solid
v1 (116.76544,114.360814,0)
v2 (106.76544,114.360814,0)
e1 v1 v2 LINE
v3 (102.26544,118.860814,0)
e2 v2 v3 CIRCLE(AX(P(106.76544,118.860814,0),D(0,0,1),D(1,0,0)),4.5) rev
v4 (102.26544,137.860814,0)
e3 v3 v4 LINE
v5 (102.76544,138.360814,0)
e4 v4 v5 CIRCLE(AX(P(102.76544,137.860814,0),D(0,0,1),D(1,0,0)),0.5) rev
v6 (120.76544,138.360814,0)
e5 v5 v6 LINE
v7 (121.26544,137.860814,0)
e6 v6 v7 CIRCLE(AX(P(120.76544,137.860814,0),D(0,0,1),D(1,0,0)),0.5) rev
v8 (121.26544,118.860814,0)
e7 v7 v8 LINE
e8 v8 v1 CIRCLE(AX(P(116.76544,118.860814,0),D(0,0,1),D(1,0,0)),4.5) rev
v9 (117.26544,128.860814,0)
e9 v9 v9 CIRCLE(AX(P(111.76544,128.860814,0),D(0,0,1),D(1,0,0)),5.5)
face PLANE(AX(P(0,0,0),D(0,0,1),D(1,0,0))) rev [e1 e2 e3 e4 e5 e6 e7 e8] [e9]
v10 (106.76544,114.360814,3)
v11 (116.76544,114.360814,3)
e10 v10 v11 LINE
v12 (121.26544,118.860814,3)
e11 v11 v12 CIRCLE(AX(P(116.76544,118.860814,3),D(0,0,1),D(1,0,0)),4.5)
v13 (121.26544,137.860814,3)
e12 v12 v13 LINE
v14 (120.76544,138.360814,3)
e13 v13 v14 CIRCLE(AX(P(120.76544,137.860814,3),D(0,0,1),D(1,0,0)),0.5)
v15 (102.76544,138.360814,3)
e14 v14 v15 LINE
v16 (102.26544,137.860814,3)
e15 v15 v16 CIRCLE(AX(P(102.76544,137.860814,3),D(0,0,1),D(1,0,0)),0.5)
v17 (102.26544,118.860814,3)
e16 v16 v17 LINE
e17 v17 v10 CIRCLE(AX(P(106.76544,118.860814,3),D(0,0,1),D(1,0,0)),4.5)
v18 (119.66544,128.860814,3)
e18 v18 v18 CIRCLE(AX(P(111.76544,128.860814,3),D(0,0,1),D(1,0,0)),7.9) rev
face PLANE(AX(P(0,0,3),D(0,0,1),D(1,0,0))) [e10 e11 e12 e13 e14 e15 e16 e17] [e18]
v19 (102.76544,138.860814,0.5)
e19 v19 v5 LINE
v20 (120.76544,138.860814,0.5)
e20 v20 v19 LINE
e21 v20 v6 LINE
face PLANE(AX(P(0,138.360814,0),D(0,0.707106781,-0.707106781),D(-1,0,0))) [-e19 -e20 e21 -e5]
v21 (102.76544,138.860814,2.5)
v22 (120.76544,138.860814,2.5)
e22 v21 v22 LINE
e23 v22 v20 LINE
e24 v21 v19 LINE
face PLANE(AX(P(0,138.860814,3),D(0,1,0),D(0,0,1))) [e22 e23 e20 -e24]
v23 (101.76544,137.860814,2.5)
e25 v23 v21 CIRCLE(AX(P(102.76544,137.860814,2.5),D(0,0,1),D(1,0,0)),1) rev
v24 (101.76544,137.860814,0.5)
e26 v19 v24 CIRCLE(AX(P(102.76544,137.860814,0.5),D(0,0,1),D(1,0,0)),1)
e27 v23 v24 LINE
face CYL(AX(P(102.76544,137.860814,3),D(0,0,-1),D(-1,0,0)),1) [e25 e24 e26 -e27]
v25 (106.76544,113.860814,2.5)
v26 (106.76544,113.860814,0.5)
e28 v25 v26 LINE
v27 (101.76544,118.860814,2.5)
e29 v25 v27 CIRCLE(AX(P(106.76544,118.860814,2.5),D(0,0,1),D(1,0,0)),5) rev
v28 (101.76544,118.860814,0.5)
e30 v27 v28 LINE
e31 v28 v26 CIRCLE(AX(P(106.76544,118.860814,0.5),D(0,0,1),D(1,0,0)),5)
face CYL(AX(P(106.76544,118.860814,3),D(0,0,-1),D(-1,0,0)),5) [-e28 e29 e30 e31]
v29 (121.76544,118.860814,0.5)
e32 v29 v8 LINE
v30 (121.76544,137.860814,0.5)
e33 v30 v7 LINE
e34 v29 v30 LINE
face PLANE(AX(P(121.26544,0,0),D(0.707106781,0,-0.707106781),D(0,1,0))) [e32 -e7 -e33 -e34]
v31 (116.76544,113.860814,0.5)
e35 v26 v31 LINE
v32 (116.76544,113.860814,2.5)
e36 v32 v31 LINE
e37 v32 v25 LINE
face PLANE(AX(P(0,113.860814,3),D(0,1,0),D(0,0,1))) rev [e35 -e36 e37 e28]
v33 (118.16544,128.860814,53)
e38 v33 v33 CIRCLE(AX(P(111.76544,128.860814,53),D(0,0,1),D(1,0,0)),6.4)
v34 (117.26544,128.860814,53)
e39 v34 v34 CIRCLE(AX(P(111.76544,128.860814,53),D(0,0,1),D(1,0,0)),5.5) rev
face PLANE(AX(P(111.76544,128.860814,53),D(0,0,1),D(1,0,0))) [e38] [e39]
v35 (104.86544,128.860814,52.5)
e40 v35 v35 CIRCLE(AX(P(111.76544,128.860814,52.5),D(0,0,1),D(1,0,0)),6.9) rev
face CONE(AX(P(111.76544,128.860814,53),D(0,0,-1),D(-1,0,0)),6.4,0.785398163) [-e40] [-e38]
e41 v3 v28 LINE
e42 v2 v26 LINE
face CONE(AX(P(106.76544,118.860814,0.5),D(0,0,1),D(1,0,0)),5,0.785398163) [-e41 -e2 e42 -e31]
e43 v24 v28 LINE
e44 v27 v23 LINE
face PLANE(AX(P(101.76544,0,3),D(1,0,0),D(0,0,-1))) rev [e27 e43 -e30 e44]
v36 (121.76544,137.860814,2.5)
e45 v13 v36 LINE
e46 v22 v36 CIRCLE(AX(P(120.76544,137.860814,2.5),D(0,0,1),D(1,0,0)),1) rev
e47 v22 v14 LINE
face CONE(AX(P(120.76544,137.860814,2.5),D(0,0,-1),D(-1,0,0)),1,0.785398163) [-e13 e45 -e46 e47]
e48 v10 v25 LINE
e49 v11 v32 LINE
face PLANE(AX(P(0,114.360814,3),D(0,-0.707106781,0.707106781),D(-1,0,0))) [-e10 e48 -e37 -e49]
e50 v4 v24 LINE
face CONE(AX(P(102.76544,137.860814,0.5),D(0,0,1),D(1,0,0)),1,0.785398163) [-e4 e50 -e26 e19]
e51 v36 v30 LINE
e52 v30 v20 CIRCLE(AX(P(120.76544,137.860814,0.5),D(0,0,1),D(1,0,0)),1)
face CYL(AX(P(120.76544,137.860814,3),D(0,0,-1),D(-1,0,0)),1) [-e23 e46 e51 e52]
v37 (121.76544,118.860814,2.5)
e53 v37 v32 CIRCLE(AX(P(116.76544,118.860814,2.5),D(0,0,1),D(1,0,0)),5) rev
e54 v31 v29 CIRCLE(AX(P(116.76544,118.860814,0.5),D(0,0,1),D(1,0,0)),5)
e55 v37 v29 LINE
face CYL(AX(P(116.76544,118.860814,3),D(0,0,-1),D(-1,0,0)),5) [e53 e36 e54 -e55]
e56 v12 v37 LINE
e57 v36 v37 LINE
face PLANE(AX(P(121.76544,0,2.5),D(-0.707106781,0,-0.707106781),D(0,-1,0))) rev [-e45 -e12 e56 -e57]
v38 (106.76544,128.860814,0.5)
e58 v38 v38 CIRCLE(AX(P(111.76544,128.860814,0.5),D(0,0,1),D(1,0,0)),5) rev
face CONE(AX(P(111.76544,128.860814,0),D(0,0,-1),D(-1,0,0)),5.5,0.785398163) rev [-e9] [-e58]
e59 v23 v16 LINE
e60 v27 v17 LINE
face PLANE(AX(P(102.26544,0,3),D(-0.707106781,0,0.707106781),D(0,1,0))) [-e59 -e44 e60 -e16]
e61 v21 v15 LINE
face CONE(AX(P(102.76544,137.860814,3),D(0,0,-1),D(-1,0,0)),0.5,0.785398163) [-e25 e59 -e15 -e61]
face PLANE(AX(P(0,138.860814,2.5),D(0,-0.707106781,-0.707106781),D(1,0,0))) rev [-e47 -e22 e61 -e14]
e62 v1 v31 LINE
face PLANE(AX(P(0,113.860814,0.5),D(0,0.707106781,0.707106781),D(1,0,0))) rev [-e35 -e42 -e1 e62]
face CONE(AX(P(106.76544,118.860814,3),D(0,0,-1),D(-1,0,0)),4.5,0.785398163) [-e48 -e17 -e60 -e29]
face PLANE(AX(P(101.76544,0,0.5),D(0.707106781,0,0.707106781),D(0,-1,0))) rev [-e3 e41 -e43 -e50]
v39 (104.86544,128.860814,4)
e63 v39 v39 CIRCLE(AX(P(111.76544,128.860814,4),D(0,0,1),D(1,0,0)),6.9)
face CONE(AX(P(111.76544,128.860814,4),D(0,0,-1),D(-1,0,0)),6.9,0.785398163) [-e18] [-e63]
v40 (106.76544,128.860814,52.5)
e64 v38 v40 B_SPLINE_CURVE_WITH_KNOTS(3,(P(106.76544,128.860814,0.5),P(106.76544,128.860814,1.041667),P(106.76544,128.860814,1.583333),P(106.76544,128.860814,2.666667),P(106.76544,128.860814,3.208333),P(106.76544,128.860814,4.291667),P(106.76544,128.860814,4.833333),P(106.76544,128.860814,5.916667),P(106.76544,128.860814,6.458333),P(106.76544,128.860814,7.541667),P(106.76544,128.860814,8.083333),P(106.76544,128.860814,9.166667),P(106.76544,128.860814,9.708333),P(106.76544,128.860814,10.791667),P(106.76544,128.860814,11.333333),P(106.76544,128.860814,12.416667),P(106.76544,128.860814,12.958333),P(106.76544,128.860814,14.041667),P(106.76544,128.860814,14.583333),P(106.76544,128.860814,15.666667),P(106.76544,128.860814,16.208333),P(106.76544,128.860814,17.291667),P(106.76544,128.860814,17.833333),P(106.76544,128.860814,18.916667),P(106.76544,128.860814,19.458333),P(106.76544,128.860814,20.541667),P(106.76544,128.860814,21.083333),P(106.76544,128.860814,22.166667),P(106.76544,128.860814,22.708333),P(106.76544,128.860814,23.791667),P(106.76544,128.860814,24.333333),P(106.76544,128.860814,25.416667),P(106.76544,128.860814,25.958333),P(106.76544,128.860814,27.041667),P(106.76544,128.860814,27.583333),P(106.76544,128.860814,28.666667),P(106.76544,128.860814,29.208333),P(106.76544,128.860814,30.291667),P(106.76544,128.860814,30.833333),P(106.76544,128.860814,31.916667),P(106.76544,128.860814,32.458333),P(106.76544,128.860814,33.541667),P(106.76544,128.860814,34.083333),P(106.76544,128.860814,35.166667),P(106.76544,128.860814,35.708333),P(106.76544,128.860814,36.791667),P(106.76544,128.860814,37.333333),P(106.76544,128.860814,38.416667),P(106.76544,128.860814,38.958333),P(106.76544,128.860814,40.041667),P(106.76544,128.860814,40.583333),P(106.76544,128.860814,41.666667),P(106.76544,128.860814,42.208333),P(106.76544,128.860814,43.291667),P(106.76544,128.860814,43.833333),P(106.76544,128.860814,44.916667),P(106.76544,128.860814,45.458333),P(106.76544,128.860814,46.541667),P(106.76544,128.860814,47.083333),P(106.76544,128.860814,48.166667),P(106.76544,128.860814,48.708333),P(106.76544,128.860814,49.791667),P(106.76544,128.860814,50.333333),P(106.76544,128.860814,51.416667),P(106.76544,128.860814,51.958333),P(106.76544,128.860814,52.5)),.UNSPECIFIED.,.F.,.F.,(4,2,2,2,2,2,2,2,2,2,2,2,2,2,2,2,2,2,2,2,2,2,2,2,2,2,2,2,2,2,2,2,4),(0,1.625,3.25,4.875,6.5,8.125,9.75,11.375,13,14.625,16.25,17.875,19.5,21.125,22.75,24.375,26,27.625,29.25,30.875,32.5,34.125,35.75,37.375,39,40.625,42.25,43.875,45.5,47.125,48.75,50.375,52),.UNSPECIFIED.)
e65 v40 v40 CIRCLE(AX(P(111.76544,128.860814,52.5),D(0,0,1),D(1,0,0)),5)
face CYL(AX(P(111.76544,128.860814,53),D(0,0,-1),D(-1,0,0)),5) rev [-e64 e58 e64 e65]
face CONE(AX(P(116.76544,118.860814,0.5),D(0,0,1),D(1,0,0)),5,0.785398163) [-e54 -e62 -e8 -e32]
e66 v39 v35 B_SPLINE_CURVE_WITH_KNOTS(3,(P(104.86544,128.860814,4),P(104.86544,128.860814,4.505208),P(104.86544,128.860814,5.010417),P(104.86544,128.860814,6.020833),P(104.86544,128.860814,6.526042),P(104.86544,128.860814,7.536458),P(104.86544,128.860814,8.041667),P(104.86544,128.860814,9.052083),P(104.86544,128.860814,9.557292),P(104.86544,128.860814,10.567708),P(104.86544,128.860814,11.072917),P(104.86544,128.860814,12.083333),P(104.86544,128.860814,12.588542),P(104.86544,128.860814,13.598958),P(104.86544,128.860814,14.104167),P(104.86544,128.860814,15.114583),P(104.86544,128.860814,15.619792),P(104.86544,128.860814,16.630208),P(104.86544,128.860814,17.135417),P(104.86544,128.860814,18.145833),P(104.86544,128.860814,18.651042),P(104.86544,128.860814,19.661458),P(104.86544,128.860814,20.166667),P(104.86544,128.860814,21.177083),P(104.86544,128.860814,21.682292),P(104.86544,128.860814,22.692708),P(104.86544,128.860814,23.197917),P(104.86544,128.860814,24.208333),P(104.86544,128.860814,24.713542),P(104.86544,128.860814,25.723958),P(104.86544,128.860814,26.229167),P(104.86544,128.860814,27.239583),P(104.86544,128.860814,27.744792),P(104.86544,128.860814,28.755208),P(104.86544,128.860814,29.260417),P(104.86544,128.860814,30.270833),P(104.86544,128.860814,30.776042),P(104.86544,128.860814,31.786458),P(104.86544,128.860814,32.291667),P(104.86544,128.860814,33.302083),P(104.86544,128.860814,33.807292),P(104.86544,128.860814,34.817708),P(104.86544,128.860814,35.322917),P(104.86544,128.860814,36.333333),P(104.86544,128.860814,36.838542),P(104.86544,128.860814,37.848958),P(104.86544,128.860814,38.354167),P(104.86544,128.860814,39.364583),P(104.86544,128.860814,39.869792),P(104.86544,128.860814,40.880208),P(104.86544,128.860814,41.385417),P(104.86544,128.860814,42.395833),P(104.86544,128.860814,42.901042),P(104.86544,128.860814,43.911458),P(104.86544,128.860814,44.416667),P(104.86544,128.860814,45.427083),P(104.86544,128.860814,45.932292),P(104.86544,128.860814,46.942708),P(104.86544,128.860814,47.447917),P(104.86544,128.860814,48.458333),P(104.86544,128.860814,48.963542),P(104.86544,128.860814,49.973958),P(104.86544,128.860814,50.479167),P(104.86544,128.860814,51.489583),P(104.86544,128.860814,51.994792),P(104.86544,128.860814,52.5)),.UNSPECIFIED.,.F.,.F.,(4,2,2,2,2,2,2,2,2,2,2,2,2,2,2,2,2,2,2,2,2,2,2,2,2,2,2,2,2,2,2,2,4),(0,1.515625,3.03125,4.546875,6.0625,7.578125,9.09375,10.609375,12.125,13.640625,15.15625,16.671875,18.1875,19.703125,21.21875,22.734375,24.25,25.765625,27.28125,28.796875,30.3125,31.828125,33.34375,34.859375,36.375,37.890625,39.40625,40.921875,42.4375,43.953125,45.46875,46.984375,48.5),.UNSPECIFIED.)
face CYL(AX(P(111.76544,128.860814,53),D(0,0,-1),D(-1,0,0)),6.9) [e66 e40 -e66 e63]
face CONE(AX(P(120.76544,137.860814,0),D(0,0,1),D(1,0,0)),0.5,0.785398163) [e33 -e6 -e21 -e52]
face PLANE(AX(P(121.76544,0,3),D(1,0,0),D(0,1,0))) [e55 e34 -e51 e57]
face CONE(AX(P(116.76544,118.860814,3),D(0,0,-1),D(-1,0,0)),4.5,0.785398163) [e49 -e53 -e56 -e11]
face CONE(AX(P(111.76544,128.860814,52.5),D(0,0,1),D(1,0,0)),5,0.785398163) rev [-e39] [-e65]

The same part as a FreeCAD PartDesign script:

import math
import FreeCAD as App
import Part
import Sketcher
from FreeCAD import Vector
Q = App.Units.Quantity


def edges_at(feature, points):
    """Names of the edges that pass closest to the given points."""
    edges = feature.Shape.Edges
    near = lambda p: min(range(len(edges)), key=lambda i: edges[i].distToShape(Part.Vertex(*p))[0])
    return sorted({f"Edge{near(p) + 1}" for p in points})

doc = App.newDocument("Part")
body = doc.addObject("PartDesign::Body", "Body")

sketch1 = body.newObject("Sketcher::SketchObject", "Sketch")
sketch1.AttachmentSupport = (doc.getObject("XY_Plane"), [""])
sketch1.MapMode = "FlatFace"
sketch1.addGeometry(Part.LineSegment(Vector(120.76544, 138.860814, 0), Vector(102.76544, 138.860814, 0)), False)
sketch1.addGeometry(Part.ArcOfCircle(Part.Circle(Vector(102.76544, 137.860814, 0), Vector(0, 0, 1), 1), math.radians(90), math.radians(180)), False)
sketch1.addGeometry(Part.LineSegment(Vector(101.76544, 137.860814, 0), Vector(101.76544, 118.860814, 0)), False)
sketch1.addGeometry(Part.ArcOfCircle(Part.Circle(Vector(106.76544, 118.860814, 0), Vector(0, 0, 1), 5), math.radians(180), math.radians(270)), False)
sketch1.addGeometry(Part.LineSegment(Vector(106.76544, 113.860814, 0), Vector(116.76544, 113.860814, 0)), False)
sketch1.addGeometry(Part.ArcOfCircle(Part.Circle(Vector(116.76544, 118.860814, 0), Vector(0, 0, 1), 5), math.radians(-90), math.radians(0)), False)
sketch1.addGeometry(Part.LineSegment(Vector(121.76544, 118.860814, 0), Vector(121.76544, 137.860814, 0)), False)
sketch1.addGeometry(Part.ArcOfCircle(Part.Circle(Vector(120.76544, 137.860814, 0), Vector(0, 0, 1), 1), math.radians(0), math.radians(90)), False)
sketch1.addGeometry(Part.Circle(Vector(111.76544, 128.860814, 0), Vector(0, 0, 1), 6.9), False)
sketch1.addConstraint(Sketcher.Constraint("Tangent", 0, 2, 1, 1))
sketch1.addConstraint(Sketcher.Constraint("Tangent", 1, 2, 2, 1))
sketch1.addConstraint(Sketcher.Constraint("Tangent", 2, 2, 3, 1))
sketch1.addConstraint(Sketcher.Constraint("Tangent", 3, 2, 4, 1))
sketch1.addConstraint(Sketcher.Constraint("Tangent", 4, 2, 5, 1))
sketch1.addConstraint(Sketcher.Constraint("Tangent", 5, 2, 6, 1))
sketch1.addConstraint(Sketcher.Constraint("Tangent", 6, 2, 7, 1))
sketch1.addConstraint(Sketcher.Constraint("Tangent", 7, 2, 0, 1))
sketch1.addConstraint(Sketcher.Constraint("Horizontal", 0))
sketch1.addConstraint(Sketcher.Constraint("Vertical", 2))
sketch1.addConstraint(Sketcher.Constraint("Horizontal", 4))
sketch1.addConstraint(Sketcher.Constraint("Vertical", 6))
sketch1.addConstraint(Sketcher.Constraint("Equal", 3, 5))
sketch1.addConstraint(Sketcher.Constraint("Equal", 1, 7))
sketch1.addConstraint(Sketcher.Constraint("Radius", 1, Q("1 mm")))
sketch1.addConstraint(Sketcher.Constraint("Radius", 3, Q("5 mm")))
sketch1.addConstraint(Sketcher.Constraint("Diameter", 8, Q("13.8 mm")))
sketch1.addConstraint(Sketcher.Constraint("DistanceX", 0, 2, 0, 1, Q("18 mm")))
sketch1.addConstraint(Sketcher.Constraint("DistanceY", 2, 2, 2, 1, Q("19 mm")))
sketch1.addConstraint(Sketcher.Constraint("DistanceX", 3, 3, 8, 3, Q("5 mm")))
sketch1.addConstraint(Sketcher.Constraint("DistanceY", 3, 3, 8, 3, Q("10 mm")))
sketch1.addConstraint(Sketcher.Constraint("DistanceX", -1, 1, 1, 3, Q("102.76544 mm")))
sketch1.addConstraint(Sketcher.Constraint("DistanceY", -1, 1, 1, 3, Q("137.860814 mm")))
pad1 = body.newObject("PartDesign::Pad", "Pad")
pad1.Profile = sketch1
pad1.Length = 3

sketch2 = body.newObject("Sketcher::SketchObject", "Sketch001")
sketch2.AttachmentSupport = (doc.getObject("XY_Plane"), [""])
sketch2.MapMode = "FlatFace"
sketch2.addGeometry(Part.Circle(Vector(111.76544, 128.860814, 0), Vector(0, 0, 1), 6.9), False)
sketch2.addGeometry(Part.Circle(Vector(111.76544, 128.860814, 0), Vector(0, 0, 1), 5), False)
sketch2.addConstraint(Sketcher.Constraint("Coincident", 1, 3, 0, 3))
sketch2.addConstraint(Sketcher.Constraint("Diameter", 1, Q("10 mm")))
sketch2.addConstraint(Sketcher.Constraint("Diameter", 0, Q("13.8 mm")))
sketch2.addConstraint(Sketcher.Constraint("DistanceX", -1, 1, 0, 3, Q("111.76544 mm")))
sketch2.addConstraint(Sketcher.Constraint("DistanceY", -1, 1, 0, 3, Q("128.860814 mm")))
pad2 = body.newObject("PartDesign::Pad", "Pad001")
pad2.Profile = sketch2
pad2.Length = 53
doc.recompute()

chamfer = body.newObject("PartDesign::Chamfer", "Chamfer")
chamfer.Base = (pad2, edges_at(pad2, [
    (121.473, 138.568, 0),
    (121.765, 128.361, 0),
    (111.765, 138.861, 3),
    (120.301, 115.325, 0),
    (111.765, 113.861, 0),
    (103.23, 115.325, 0),
    (101.765, 128.361, 0),
    (102.058, 138.568, 0),
    (111.765, 138.861, 0),
    (102.058, 138.568, 3),
    (101.765, 128.361, 3),
    (103.23, 115.325, 3),
    (118.665, 128.861, 53),
    (116.765, 128.861, 0),
    (116.765, 128.861, 53),
    (111.765, 113.861, 3),
    (120.301, 115.325, 3),
    (121.765, 128.361, 3),
    (121.473, 138.568, 3),
]))
chamfer.Size = 0.5
doc.recompute()

chamfer2 = body.newObject("PartDesign::Chamfer", "Chamfer001")
chamfer2.Base = (chamfer, edges_at(chamfer, [(118.665, 128.861, 3)]))
chamfer2.Size = 1

doc.recompute()
